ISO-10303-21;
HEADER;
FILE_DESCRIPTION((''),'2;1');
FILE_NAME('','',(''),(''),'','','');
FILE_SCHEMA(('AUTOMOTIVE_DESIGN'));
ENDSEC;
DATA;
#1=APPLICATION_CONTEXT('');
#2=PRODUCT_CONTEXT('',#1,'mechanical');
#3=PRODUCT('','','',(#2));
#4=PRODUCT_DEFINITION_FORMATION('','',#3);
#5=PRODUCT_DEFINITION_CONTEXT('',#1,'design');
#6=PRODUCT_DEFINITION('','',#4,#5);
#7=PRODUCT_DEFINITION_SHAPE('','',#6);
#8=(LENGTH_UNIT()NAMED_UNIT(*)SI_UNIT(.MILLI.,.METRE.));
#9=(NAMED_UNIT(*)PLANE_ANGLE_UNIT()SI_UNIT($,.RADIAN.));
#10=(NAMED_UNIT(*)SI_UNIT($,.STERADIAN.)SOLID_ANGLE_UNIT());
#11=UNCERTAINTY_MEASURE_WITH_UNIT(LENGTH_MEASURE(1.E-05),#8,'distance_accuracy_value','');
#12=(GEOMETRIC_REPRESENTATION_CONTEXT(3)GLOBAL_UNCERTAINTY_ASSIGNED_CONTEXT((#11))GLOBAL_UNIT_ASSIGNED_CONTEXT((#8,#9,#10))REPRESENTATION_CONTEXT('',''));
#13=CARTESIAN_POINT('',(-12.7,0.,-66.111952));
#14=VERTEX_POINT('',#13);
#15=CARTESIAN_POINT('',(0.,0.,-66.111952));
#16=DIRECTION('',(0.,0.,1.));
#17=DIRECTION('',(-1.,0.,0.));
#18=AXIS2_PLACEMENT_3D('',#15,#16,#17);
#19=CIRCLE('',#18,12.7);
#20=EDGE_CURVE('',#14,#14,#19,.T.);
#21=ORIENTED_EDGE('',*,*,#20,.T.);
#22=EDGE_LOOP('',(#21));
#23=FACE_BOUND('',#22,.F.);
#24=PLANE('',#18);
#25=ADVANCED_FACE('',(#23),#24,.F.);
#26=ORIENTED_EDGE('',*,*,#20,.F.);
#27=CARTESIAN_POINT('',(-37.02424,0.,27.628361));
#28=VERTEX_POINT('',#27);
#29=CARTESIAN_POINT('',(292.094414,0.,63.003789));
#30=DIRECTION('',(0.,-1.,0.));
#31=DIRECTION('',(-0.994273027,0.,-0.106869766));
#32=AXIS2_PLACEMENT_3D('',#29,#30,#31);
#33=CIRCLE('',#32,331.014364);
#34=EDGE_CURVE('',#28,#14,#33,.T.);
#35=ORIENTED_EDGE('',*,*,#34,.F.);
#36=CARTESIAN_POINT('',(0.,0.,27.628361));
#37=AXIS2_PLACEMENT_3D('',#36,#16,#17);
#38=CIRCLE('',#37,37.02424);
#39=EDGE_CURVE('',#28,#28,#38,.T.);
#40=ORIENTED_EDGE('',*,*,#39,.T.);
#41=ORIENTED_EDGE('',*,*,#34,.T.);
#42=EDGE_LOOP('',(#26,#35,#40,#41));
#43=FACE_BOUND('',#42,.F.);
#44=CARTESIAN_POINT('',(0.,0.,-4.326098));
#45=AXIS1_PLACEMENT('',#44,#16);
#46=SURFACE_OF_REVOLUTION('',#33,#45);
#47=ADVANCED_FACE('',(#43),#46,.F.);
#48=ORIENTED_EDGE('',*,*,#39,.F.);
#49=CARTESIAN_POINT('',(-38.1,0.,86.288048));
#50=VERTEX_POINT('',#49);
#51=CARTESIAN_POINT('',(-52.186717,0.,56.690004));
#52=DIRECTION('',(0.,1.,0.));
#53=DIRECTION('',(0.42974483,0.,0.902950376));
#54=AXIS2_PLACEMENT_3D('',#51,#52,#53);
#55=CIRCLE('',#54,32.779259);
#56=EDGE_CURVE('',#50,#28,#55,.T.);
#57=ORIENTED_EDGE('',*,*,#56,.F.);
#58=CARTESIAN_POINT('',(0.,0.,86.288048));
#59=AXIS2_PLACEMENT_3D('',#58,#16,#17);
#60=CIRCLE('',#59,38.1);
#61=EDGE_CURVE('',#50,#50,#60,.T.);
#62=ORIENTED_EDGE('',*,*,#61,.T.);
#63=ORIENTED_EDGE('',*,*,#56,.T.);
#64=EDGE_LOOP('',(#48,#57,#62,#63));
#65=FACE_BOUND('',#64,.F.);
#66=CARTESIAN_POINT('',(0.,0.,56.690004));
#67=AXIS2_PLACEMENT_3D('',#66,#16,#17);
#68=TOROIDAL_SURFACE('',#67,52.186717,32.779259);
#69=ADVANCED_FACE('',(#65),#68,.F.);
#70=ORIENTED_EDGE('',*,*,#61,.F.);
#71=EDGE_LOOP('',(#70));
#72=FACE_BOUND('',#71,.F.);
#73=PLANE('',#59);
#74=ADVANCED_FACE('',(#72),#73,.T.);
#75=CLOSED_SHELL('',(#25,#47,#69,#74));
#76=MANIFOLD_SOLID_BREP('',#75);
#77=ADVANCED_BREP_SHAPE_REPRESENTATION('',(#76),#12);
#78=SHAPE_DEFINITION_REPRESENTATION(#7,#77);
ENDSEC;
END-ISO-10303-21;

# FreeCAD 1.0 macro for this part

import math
import FreeCAD as App
import Part
import Sketcher
from FreeCAD import Vector
Q = App.Units.Quantity

doc = App.newDocument("Part")
params = doc.addObject("Spreadsheet::Sheet", "Params")
for row, (alias, value) in enumerate([
    ("sketch1_height", "6 in"),
    ("sketch1_width", "1.5 in"),
    ("sketch1_width2", "0.5 in"),
    ("revolution_angle", "360 deg"),
], start=1):
    params.set(f"A{row}", alias)
    params.set(f"B{row}", "=" + value)
    params.setAlias(f"B{row}", alias)

body = doc.addObject("PartDesign::Body", "Body")

# Sketch on XZ plane
sketch1 = doc.addObject("Sketcher::SketchObject", "Sketch")
body.addObject(sketch1)
sketch1.AttachmentSupport = (doc.XZ_Plane, [""])
sketch1.MapMode = "FlatFace"
sketch1.addGeometry(Part.LineSegment(Vector(0, 86.288048, 0), Vector(-38.1, 86.288048, 0)), False)
sketch1.addGeometry(Part.ArcOfCircle(Part.Circle(Vector(-52.186717, 56.690004, 0), Vector(0, 0, 1), 32.779259), math.radians(-62.447373), math.radians(64.548632)), False)
sketch1.addGeometry(Part.ArcOfCircle(Part.Circle(Vector(292.094414, 63.003789, 0), Vector(0, 0, 1), 331.014364), math.radians(-173.865097), math.radians(-157.041715)), False)
sketch1.addGeometry(Part.LineSegment(Vector(-12.7, -66.111952, 0), Vector(0, -66.111952, 0)), False)
sketch1.addGeometry(Part.LineSegment(Vector(0, -66.111952, 0), Vector(0, 86.288048, 0)), False)
sketch1.addConstraint(Sketcher.Constraint("Coincident", 0, 2, 1, 2))
sketch1.addConstraint(Sketcher.Constraint("Coincident", 1, 1, 2, 1))
sketch1.addConstraint(Sketcher.Constraint("Coincident", 2, 2, 3, 1))
sketch1.addConstraint(Sketcher.Constraint("Coincident", 3, 2, 4, 1))
sketch1.addConstraint(Sketcher.Constraint("Coincident", 4, 2, 0, 1))
sketch1.addConstraint(Sketcher.Constraint("Horizontal", 0))
sketch1.addConstraint(Sketcher.Constraint("Horizontal", 3))
sketch1.addConstraint(Sketcher.Constraint("Vertical", 4))
sketch1.addConstraint(Sketcher.Constraint("PointOnObject", 3, 2, -2))
sketch1.addConstraint(Sketcher.Constraint("DistanceY", 4, 1, 4, 2, Q("6 in")))
sketch1.addConstraint(Sketcher.Constraint("DistanceX", 0, 2, 0, 1, Q("1.5 in")))
sketch1.addConstraint(Sketcher.Constraint("DistanceX", 3, 1, 3, 2, Q("0.5 in")))
sketch1.addConstraint(Sketcher.Constraint("Radius", 1, 32.779259))
sketch1.addConstraint(Sketcher.Constraint("Radius", 2, 331.014364))
sketch1.addConstraint(Sketcher.Constraint("DistanceY", -1, 1, 2, 3, 63.003789))
sketch1.addConstraint(Sketcher.Constraint("DistanceY", -1, 1, 0, 2, 86.288048))
sketch1.addConstraint(Sketcher.Constraint("DistanceX", 1, 1, -1, 1, 37.02424))
sketch1.setExpression("Constraints[9]", "Params.sketch1_height")
sketch1.setExpression("Constraints[10]", "Params.sketch1_width")
sketch1.setExpression("Constraints[11]", "Params.sketch1_width2")
revolution = doc.addObject("PartDesign::Revolution", "Revolution")
body.addObject(revolution)
revolution.Profile = sketch1
revolution.ReferenceAxis = (sketch1, ["V_Axis"])
revolution.setExpression("Angle", "Params.revolution_angle")

doc.recompute()
